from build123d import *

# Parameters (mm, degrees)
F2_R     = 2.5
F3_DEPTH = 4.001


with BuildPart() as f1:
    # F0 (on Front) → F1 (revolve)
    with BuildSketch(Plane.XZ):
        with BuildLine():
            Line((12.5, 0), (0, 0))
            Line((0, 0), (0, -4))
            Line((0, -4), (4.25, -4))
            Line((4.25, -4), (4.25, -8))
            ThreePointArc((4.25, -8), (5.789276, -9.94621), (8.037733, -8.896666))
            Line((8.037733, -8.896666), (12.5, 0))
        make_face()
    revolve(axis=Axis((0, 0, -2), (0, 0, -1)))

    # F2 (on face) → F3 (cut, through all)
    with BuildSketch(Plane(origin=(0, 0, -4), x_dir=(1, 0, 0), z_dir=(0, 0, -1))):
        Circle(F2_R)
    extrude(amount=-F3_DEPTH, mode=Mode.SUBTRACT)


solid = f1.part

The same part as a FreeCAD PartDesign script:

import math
import FreeCAD as App
import Part
import Sketcher
Q = App.Units.Quantity

doc = App.newDocument("Part")
body = doc.addObject("PartDesign::Body", "Body")

# Sketch on XZ plane
sketch1 = doc.addObject("Sketcher::SketchObject", "Sketch")
body.addObject(sketch1)
sketch1.AttachmentSupport = (doc.XZ_Plane, [""])
sketch1.MapMode = "FlatFace"
sketch1.addGeometry([
    Part.LineSegment(App.Vector(12.5, 0, 0), App.Vector(0, 0, 0)),  # 0
    Part.LineSegment(App.Vector(0, 0, 0), App.Vector(0, -4, 0)),  # 1
    Part.LineSegment(App.Vector(0, -4, 0), App.Vector(4.25, -4, 0)),  # 2
    Part.LineSegment(App.Vector(4.25, -4, 0), App.Vector(4.25, -8, 0)),  # 3
    Part.ArcOfCircle(Part.Circle(App.Vector(6.25, -8, 0), App.Vector(0, 0, 1), 2), math.radians(179.999997), math.radians(333.36322)),  # 4
    Part.LineSegment(App.Vector(8.037733, -8.896666, 0), App.Vector(12.5, 0, 0)),  # 5
], False)
sketch1.addConstraint([
    Sketcher.Constraint("Coincident", 0, 2, 1, 1),
    Sketcher.Constraint("Coincident", 1, 2, 2, 1),
    Sketcher.Constraint("Coincident", 2, 2, 3, 1),
    Sketcher.Constraint("Tangent", 3, 2, 4, 1),
    Sketcher.Constraint("Tangent", 4, 2, 5, 1),
    Sketcher.Constraint("Coincident", 5, 2, 0, 1),
    Sketcher.Constraint("Horizontal", 0),
    Sketcher.Constraint("Vertical", 1),
    Sketcher.Constraint("Horizontal", 2),
    Sketcher.Constraint("Vertical", 3),
    Sketcher.Constraint("Coincident", 0, 2, -1, 1),
    Sketcher.Constraint("Equal", 1, 3),
    Sketcher.Constraint("Radius", 4, Q("2 mm")),
    Sketcher.Constraint("DistanceY", 1, 2, 1, 1, Q("4 mm")),
    Sketcher.Constraint("DistanceX", 0, 2, 0, 1, Q("12.5 mm")),
    Sketcher.Constraint("DistanceX", 2, 1, 2, 2, Q("4.25 mm")),
])
revolution = doc.addObject("PartDesign::Revolution", "Revolution")
body.addObject(revolution)
revolution.Profile = sketch1
revolution.ReferenceAxis = (sketch1, ["V_Axis"])
revolution.Angle = 360

# Sketch on XY plane
sketch2 = doc.addObject("Sketcher::SketchObject", "Sketch001")
body.addObject(sketch2)
sketch2.AttachmentSupport = (doc.XY_Plane, [""])
sketch2.MapMode = "FlatFace"
sketch2.AttachmentOffset = App.Placement(App.Vector(0, 0, -4), App.Rotation())
sketch2.addGeometry(Part.Circle(App.Vector(0, 0, 0), App.Vector(0, 0, 1), 2.5), False)
sketch2.addConstraint([
    Sketcher.Constraint("Coincident", 0, 3, -1, 1),
    Sketcher.Constraint("Diameter", 0, Q("5 mm")),
])
pocket1 = doc.addObject("PartDesign::Pocket", "Pocket")
body.addObject(pocket1)
pocket1.Profile = sketch2
pocket1.Type = "ThroughAll"
pocket1.Reversed = True

doc.recompute()
